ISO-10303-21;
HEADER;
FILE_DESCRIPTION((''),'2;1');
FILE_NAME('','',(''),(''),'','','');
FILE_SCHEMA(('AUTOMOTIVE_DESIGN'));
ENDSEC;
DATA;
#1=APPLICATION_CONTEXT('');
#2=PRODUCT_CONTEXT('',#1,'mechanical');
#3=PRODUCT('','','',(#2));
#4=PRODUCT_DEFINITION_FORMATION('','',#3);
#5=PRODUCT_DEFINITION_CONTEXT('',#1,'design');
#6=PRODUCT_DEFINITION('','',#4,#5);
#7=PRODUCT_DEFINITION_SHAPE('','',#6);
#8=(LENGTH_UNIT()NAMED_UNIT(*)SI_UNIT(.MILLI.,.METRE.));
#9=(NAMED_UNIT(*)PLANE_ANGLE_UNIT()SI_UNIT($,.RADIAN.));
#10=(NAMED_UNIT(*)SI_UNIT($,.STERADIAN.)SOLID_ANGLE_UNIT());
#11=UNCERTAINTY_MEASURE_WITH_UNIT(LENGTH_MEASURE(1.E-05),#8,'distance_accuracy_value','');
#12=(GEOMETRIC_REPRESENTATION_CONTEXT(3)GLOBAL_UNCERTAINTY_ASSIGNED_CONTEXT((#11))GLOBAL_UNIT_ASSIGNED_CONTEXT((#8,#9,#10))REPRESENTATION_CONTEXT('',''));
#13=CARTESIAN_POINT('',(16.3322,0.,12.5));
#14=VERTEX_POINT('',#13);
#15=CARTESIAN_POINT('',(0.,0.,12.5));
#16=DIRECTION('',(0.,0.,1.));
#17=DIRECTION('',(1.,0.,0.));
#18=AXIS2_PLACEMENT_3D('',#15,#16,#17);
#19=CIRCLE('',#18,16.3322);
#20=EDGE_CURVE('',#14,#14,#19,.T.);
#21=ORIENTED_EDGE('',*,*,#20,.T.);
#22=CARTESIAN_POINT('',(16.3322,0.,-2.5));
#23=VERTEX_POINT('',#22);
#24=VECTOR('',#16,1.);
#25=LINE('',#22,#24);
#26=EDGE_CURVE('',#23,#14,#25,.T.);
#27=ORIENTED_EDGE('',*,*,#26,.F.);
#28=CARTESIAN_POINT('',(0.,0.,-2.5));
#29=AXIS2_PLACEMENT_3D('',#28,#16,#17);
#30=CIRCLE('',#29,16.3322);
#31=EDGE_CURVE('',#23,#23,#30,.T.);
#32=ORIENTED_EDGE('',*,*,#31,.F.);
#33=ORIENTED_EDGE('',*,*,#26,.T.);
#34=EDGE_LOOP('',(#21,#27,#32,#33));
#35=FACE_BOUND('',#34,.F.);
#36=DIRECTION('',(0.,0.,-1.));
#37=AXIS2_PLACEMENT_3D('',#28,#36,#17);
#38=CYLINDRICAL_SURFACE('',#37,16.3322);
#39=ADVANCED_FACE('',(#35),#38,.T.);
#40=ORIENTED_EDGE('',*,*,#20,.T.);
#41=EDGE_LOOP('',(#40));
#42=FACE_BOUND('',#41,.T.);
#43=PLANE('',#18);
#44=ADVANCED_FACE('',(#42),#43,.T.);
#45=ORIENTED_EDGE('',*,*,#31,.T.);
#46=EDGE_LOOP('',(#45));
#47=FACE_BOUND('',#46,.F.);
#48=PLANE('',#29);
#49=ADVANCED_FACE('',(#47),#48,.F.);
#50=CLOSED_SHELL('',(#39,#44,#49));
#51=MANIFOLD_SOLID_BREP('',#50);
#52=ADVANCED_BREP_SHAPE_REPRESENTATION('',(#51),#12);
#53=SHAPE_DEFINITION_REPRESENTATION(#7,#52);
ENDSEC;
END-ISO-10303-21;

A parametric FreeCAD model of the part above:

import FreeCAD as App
import Part
import Sketcher

V = App.Vector

doc = App.newDocument("Part")
body = doc.addObject("PartDesign::Body", "Body")

sketch1 = body.newObject("Sketcher::SketchObject", "Sketch")
sketch1.AttachmentSupport = (doc.getObject("XY_Plane"), [""])
sketch1.MapMode = "FlatFace"
sketch1.AttachmentOffset = App.Placement(V(0, 0, -2.5), App.Rotation())
sketch1.addGeometry(Part.Circle(V(0, 0, 0), V(0, 0, 1), 16), False)
sketch1.addConstraint(Sketcher.Constraint("Coincident", 0, 3, -1, 1))
sketch1.addConstraint(Sketcher.Constraint("Diameter", 0, 32.6644))
pad1 = body.newObject("PartDesign::Pad", "Pad")
pad1.Profile = sketch1
pad1.Length = 15

doc.recompute()
